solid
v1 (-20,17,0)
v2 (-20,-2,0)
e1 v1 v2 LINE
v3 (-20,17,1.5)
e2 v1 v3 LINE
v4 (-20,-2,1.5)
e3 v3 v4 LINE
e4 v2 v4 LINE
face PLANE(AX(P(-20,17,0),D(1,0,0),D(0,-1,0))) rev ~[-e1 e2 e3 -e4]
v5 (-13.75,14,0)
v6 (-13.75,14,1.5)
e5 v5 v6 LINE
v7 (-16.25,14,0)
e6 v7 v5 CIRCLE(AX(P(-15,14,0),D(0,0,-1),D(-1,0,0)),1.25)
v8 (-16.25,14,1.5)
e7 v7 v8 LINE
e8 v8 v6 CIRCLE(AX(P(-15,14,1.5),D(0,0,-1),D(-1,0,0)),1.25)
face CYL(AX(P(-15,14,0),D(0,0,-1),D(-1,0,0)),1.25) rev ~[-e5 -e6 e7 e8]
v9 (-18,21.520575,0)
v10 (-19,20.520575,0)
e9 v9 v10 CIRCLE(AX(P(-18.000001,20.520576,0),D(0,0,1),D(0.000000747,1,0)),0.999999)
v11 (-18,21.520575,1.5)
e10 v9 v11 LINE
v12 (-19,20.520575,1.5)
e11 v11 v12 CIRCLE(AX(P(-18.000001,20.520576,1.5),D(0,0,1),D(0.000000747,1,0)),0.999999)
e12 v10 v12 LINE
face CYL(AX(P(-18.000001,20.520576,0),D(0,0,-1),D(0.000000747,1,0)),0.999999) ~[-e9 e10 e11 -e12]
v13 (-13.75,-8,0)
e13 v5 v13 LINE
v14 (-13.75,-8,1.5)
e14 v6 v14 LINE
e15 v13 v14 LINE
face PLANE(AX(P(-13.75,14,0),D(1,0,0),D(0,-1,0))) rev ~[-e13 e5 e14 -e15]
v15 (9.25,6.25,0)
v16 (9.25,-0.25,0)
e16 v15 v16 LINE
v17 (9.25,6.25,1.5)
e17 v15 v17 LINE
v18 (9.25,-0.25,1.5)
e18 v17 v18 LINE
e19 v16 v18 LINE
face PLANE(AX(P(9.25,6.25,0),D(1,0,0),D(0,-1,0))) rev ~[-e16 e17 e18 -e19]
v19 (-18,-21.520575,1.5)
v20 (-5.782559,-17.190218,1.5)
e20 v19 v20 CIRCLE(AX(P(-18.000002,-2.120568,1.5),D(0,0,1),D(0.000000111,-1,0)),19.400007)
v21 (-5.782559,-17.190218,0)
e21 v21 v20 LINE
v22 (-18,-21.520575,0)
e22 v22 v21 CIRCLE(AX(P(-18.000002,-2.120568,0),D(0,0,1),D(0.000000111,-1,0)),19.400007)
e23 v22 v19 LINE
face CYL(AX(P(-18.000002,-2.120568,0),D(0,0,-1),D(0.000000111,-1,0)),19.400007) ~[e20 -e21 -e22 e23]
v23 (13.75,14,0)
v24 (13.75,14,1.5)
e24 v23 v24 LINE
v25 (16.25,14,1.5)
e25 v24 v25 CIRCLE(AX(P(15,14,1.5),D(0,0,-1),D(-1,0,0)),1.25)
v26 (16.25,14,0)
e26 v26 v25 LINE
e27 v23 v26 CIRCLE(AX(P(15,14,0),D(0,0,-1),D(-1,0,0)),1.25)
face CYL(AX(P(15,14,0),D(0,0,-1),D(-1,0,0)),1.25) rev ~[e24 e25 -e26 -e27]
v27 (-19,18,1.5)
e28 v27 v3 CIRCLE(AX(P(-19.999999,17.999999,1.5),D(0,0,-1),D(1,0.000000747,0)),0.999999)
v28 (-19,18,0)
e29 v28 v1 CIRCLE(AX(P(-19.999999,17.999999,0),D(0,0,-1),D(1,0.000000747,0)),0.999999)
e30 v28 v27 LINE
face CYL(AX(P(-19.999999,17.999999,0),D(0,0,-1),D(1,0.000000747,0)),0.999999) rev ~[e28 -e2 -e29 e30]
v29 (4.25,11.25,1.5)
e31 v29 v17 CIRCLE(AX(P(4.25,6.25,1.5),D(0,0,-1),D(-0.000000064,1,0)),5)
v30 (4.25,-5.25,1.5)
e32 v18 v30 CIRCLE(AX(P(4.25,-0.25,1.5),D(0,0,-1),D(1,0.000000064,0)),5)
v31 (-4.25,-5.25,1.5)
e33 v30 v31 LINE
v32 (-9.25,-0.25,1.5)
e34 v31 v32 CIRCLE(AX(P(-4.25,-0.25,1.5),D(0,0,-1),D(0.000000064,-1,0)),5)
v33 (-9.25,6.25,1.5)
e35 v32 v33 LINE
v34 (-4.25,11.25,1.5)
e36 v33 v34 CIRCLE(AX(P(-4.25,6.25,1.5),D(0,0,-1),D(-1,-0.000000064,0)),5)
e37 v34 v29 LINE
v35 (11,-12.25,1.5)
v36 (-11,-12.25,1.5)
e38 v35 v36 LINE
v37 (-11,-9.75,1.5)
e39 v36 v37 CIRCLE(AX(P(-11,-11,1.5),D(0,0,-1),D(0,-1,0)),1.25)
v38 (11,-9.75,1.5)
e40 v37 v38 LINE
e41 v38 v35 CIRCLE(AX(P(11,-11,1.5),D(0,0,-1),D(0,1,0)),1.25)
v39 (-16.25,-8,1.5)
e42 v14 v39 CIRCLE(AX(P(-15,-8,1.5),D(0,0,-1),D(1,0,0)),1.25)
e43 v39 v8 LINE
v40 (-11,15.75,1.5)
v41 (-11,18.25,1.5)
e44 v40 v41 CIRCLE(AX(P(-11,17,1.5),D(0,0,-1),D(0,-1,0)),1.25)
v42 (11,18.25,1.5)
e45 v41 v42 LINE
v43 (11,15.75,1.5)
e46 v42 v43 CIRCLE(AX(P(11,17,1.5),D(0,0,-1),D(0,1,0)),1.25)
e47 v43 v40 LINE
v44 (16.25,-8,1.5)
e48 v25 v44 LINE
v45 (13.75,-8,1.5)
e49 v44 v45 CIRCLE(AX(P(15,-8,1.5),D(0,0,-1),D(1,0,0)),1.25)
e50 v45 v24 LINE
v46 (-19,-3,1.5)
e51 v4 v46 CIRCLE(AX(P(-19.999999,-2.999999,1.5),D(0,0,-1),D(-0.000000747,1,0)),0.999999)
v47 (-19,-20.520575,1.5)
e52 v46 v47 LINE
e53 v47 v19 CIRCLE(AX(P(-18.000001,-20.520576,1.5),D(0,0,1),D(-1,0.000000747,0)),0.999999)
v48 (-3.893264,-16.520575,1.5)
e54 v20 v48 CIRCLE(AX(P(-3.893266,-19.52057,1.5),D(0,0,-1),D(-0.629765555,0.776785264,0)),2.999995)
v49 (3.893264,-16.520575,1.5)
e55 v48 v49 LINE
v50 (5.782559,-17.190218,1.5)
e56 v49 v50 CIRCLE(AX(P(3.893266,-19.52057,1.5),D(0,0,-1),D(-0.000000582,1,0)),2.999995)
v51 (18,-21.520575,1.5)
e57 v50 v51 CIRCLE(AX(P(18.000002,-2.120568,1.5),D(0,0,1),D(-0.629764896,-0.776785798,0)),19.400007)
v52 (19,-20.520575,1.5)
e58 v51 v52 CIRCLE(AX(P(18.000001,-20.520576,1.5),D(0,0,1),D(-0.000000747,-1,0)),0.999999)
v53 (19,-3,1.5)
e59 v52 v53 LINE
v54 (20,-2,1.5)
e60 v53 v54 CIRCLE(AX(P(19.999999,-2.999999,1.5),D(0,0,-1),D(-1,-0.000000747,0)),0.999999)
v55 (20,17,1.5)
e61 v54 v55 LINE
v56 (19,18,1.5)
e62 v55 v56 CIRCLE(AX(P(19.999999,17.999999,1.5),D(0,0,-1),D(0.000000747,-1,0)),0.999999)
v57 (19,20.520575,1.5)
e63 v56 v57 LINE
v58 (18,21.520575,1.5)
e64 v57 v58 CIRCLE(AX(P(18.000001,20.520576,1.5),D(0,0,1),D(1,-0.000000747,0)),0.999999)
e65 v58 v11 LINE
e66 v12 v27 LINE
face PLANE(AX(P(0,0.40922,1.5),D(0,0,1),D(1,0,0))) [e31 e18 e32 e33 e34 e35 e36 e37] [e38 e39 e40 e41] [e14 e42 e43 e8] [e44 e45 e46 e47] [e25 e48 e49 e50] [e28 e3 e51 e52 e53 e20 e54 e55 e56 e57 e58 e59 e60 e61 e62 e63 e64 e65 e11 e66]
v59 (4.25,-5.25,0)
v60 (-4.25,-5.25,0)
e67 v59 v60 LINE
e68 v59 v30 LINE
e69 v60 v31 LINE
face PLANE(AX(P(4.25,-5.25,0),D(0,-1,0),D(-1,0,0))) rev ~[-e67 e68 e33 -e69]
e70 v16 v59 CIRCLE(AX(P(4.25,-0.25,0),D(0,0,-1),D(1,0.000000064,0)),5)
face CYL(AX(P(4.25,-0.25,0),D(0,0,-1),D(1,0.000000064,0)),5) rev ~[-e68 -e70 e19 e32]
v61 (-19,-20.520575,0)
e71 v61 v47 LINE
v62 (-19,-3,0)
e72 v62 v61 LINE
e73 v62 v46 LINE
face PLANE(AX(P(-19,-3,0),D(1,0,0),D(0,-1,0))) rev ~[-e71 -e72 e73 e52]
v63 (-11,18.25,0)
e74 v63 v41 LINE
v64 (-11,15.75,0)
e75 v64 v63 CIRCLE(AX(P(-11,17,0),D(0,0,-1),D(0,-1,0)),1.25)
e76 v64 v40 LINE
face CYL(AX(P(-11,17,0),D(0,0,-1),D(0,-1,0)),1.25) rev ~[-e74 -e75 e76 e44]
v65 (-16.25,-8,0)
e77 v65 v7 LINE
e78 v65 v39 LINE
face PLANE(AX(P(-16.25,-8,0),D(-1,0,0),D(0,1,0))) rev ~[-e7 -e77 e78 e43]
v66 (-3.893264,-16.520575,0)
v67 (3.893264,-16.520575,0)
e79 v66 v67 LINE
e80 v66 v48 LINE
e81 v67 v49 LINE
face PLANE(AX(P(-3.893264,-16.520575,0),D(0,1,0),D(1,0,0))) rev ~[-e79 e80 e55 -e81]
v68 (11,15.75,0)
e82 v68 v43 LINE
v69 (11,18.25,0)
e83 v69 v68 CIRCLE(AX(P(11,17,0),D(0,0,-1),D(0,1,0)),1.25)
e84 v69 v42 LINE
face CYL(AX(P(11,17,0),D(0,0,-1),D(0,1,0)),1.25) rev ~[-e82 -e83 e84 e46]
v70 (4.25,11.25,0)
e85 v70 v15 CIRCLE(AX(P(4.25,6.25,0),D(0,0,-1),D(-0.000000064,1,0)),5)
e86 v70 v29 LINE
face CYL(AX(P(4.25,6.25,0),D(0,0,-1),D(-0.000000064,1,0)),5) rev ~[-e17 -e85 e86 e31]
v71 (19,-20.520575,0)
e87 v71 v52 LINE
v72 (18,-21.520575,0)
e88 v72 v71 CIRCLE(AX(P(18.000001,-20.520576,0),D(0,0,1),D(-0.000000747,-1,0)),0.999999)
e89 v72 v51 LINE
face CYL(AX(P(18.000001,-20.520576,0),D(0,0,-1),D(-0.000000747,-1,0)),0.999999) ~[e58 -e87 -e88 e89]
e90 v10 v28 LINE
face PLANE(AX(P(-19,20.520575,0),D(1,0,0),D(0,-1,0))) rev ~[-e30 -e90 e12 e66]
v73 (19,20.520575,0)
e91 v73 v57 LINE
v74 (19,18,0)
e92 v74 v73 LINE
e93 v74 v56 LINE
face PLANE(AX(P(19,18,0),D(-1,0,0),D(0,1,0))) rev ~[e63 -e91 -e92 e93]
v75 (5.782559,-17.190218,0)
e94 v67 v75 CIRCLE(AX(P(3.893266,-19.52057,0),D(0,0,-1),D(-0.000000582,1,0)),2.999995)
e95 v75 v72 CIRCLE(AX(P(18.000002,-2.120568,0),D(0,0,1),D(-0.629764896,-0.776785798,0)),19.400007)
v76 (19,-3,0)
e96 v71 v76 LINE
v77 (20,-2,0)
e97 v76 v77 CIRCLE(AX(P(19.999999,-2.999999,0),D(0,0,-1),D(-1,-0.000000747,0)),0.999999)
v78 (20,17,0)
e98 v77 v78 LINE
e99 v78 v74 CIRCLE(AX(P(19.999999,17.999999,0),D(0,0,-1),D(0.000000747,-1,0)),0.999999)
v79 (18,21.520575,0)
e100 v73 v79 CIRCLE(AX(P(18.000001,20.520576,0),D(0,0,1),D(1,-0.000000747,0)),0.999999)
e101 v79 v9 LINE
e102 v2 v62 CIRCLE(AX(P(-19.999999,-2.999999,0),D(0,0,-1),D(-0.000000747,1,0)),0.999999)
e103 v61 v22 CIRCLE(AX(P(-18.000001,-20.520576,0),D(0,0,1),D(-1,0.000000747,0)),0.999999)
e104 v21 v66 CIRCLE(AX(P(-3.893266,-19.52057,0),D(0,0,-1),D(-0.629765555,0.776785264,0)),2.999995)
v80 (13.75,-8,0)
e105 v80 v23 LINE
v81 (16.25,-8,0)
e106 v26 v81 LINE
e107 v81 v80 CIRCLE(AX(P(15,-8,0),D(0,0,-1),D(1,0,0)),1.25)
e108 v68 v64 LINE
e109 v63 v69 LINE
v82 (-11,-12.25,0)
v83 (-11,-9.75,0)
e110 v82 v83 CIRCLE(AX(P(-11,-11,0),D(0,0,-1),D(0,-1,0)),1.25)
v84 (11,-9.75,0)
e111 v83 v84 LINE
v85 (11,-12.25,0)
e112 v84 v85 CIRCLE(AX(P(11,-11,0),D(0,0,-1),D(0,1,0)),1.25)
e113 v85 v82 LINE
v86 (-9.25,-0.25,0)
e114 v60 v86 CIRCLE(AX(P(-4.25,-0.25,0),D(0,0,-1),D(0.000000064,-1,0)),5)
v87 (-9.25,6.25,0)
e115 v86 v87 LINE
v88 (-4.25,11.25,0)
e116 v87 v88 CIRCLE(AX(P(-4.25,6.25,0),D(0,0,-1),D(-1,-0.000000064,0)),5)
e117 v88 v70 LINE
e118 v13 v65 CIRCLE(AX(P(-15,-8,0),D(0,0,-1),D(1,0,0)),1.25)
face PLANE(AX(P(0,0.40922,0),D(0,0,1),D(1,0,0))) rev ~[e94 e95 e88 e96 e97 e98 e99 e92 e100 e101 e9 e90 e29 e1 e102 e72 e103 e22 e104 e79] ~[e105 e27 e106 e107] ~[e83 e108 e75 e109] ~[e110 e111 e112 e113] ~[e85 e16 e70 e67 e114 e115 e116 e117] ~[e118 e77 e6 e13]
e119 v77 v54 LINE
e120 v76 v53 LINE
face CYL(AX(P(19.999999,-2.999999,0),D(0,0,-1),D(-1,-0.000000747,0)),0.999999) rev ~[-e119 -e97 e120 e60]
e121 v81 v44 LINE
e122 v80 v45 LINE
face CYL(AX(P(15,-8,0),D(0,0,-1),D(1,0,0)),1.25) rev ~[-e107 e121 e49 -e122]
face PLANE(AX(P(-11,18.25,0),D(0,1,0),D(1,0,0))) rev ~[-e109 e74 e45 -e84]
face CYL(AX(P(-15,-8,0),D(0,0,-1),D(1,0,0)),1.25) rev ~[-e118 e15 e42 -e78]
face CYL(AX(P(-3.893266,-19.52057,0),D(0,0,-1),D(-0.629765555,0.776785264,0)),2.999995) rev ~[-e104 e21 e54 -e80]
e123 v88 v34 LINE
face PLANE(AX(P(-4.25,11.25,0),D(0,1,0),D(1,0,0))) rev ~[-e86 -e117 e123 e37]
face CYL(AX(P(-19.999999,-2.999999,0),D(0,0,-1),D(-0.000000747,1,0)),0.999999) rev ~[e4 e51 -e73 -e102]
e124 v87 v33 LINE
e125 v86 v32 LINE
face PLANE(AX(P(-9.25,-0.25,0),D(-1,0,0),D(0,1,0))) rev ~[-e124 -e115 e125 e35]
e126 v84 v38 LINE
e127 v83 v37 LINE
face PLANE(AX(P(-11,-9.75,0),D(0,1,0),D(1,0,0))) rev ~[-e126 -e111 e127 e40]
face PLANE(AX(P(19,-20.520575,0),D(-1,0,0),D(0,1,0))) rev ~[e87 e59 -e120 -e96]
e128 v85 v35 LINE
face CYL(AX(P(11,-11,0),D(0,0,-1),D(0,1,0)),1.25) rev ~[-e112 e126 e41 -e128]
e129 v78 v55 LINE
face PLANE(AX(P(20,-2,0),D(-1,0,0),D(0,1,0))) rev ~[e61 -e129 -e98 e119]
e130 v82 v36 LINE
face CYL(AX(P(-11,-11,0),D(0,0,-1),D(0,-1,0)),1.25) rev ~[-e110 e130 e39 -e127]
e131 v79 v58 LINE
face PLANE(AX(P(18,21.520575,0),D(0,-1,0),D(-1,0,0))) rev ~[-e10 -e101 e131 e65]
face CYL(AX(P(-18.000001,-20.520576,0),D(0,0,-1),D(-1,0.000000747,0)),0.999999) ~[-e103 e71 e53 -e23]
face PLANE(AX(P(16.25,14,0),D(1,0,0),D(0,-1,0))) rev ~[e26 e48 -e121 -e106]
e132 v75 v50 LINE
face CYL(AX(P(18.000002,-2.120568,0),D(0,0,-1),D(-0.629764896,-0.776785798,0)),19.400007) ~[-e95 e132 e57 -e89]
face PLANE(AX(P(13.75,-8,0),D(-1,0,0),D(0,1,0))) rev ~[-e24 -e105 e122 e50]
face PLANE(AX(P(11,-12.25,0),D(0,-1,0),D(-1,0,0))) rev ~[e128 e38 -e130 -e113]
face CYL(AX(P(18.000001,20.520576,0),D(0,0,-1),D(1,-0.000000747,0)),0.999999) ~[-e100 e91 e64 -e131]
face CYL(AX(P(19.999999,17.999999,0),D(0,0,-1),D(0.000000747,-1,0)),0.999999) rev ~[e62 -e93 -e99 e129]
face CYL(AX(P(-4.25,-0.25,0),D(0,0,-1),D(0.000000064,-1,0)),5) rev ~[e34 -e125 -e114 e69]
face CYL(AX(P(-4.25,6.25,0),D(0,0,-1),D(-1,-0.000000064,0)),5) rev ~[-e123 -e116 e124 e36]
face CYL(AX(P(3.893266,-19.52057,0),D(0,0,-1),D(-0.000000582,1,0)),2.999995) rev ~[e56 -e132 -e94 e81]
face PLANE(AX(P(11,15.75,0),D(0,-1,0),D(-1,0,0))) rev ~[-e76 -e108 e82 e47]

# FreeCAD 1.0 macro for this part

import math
import FreeCAD as App
import Part
import Sketcher

doc = App.newDocument("Part")
body = doc.addObject("PartDesign::Body", "Body")

sketch1 = body.newObject("Sketcher::SketchObject", "Sketch")
sketch1.AttachmentSupport = (doc.getObject("XY_Plane"), [""])
sketch1.MapMode = "FlatFace"
sketch1.addGeometry([
    Part.ArcOfCircle(Part.Circle(App.Vector(-19.999999, 17.999999, 0), App.Vector(0, 0, 1), 0.999999), math.radians(-90.000043), math.radians(0.000043)),
    Part.LineSegment(App.Vector(-20, 17, 0), App.Vector(-20, -2, 0)),
    Part.ArcOfCircle(Part.Circle(App.Vector(-19.999999, -2.999999, 0), App.Vector(0, 0, 1), 0.999999), math.radians(-0.000043), math.radians(90.000043)),
    Part.LineSegment(App.Vector(-19, -3, 0), App.Vector(-19, -20.520575, 0)),
    Part.ArcOfCircle(Part.Circle(App.Vector(-18.000001, -20.520576, 0), App.Vector(0, 0, 1), 0.999999), math.radians(179.999957), math.radians(270.000043)),
    Part.ArcOfCircle(Part.Circle(App.Vector(-18.000002, -2.120568, 0), App.Vector(0, 0, 1), 19.400007), math.radians(-89.999994), math.radians(-50.967221)),
    Part.ArcOfCircle(Part.Circle(App.Vector(-3.893266, -19.52057, 0), App.Vector(0, 0, 1), 2.999995), math.radians(89.999967), math.radians(129.032828)),
    Part.LineSegment(App.Vector(-3.893264, -16.520575, 0), App.Vector(3.893264, -16.520575, 0)),
    Part.ArcOfCircle(Part.Circle(App.Vector(3.893266, -19.52057, 0), App.Vector(0, 0, 1), 2.999995), math.radians(50.967172), math.radians(90.000033)),
    Part.ArcOfCircle(Part.Circle(App.Vector(18.000002, -2.120568, 0), App.Vector(0, 0, 1), 19.400007), math.radians(-129.032779), math.radians(-90.000006)),
    Part.ArcOfCircle(Part.Circle(App.Vector(18.000001, -20.520576, 0), App.Vector(0, 0, 1), 0.999999), math.radians(-90.000043), math.radians(0.000043)),
    Part.LineSegment(App.Vector(19, -20.520575, 0), App.Vector(19, -3, 0)),
    Part.ArcOfCircle(Part.Circle(App.Vector(19.999999, -2.999999, 0), App.Vector(0, 0, 1), 0.999999), math.radians(89.999957), math.radians(180.000043)),
    Part.LineSegment(App.Vector(20, -2, 0), App.Vector(20, 17, 0)),
    Part.ArcOfCircle(Part.Circle(App.Vector(19.999999, 17.999999, 0), App.Vector(0, 0, 1), 0.999999), math.radians(179.999957), math.radians(270.000043)),
    Part.LineSegment(App.Vector(19, 18, 0), App.Vector(19, 20.520575, 0)),
    Part.ArcOfCircle(Part.Circle(App.Vector(18.000001, 20.520576, 0), App.Vector(0, 0, 1), 0.999999), math.radians(-0.000043), math.radians(90.000043)),
    Part.LineSegment(App.Vector(18, 21.520575, 0), App.Vector(-18, 21.520575, 0)),
    Part.ArcOfCircle(Part.Circle(App.Vector(-18.000001, 20.520576, 0), App.Vector(0, 0, 1), 0.999999), math.radians(89.999957), math.radians(180.000043)),
    Part.LineSegment(App.Vector(-19, 20.520575, 0), App.Vector(-19, 18, 0)),
    Part.ArcOfCircle(Part.Circle(App.Vector(-11, -11, 0), App.Vector(0, 0, 1), 1.25), math.radians(90), math.radians(270)),
    Part.LineSegment(App.Vector(-11, -9.75, 0), App.Vector(11, -9.75, 0)),
    Part.ArcOfCircle(Part.Circle(App.Vector(11, -11, 0), App.Vector(0, 0, 1), 1.25), math.radians(-90), math.radians(90)),
    Part.LineSegment(App.Vector(11, -12.25, 0), App.Vector(-11, -12.25, 0)),
    Part.ArcOfCircle(Part.Circle(App.Vector(-15, -8, 0), App.Vector(0, 0, 1), 1.25), math.radians(180), math.radians(360)),
    Part.LineSegment(App.Vector(-16.25, -8, 0), App.Vector(-16.25, 14, 0)),
    Part.ArcOfCircle(Part.Circle(App.Vector(-15, 14, 0), App.Vector(0, 0, 1), 1.25), math.radians(0), math.radians(180)),
    Part.LineSegment(App.Vector(-13.75, 14, 0), App.Vector(-13.75, -8, 0)),
    Part.ArcOfCircle(Part.Circle(App.Vector(4.25, -0.25, 0), App.Vector(0, 0, 1), 5), math.radians(-90.000004), math.radians(0.000004)),
    Part.LineSegment(App.Vector(4.25, -5.25, 0), App.Vector(-4.25, -5.25, 0)),
    Part.ArcOfCircle(Part.Circle(App.Vector(-4.25, -0.25, 0), App.Vector(0, 0, 1), 5), math.radians(179.999996), math.radians(270.000004)),
    Part.LineSegment(App.Vector(-9.25, -0.25, 0), App.Vector(-9.25, 6.25, 0)),
    Part.ArcOfCircle(Part.Circle(App.Vector(-4.25, 6.25, 0), App.Vector(0, 0, 1), 5), math.radians(89.999996), math.radians(180.000004)),
    Part.LineSegment(App.Vector(-4.25, 11.25, 0), App.Vector(4.25, 11.25, 0)),
    Part.ArcOfCircle(Part.Circle(App.Vector(4.25, 6.25, 0), App.Vector(0, 0, 1), 5), math.radians(-0.000004), math.radians(90.000004)),
    Part.LineSegment(App.Vector(9.25, 6.25, 0), App.Vector(9.25, -0.25, 0)),
    Part.LineSegment(App.Vector(13.75, -8, 0), App.Vector(13.75, 14, 0)),
    Part.ArcOfCircle(Part.Circle(App.Vector(15, 14, 0), App.Vector(0, 0, 1), 1.25), math.radians(0), math.radians(180)),
    Part.LineSegment(App.Vector(16.25, 14, 0), App.Vector(16.25, -8, 0)),
    Part.ArcOfCircle(Part.Circle(App.Vector(15, -8, 0), App.Vector(0, 0, 1), 1.25), math.radians(180), math.radians(360)),
    Part.ArcOfCircle(Part.Circle(App.Vector(-11, 17, 0), App.Vector(0, 0, 1), 1.25), math.radians(90), math.radians(270)),
    Part.LineSegment(App.Vector(-11, 18.25, 0), App.Vector(11, 18.25, 0)),
    Part.ArcOfCircle(Part.Circle(App.Vector(11, 17, 0), App.Vector(0, 0, 1), 1.25), math.radians(-90), math.radians(90)),
    Part.LineSegment(App.Vector(11, 15.75, 0), App.Vector(-11, 15.75, 0)),
], False)
sketch1.addConstraint([
    Sketcher.Constraint("Coincident", 0, 1, 1, 1),
    Sketcher.Constraint("Coincident", 1, 2, 2, 2),
    Sketcher.Constraint("Tangent", 2, 1, 3, 1),
    Sketcher.Constraint("Tangent", 3, 2, 4, 1),
    Sketcher.Constraint("Tangent", 4, 2, 5, 1),
    Sketcher.Constraint("Tangent", 5, 2, 6, 2),
    Sketcher.Constraint("Tangent", 6, 1, 7, 1),
    Sketcher.Constraint("Tangent", 7, 2, 8, 2),
    Sketcher.Constraint("Tangent", 8, 1, 9, 1),
    Sketcher.Constraint("Tangent", 9, 2, 10, 1),
    Sketcher.Constraint("Tangent", 10, 2, 11, 1),
    Sketcher.Constraint("Tangent", 11, 2, 12, 2),
    Sketcher.Constraint("Coincident", 12, 1, 13, 1),
    Sketcher.Constraint("Coincident", 13, 2, 14, 2),
    Sketcher.Constraint("Tangent", 14, 1, 15, 1),
    Sketcher.Constraint("Tangent", 15, 2, 16, 1),
    Sketcher.Constraint("Tangent", 16, 2, 17, 1),
    Sketcher.Constraint("Tangent", 17, 2, 18, 1),
    Sketcher.Constraint("Tangent", 18, 2, 19, 1),
    Sketcher.Constraint("Tangent", 19, 2, 0, 2),
    Sketcher.Constraint("Tangent", 20, 1, 21, 1),
    Sketcher.Constraint("Tangent", 21, 2, 22, 2),
    Sketcher.Constraint("Tangent", 22, 1, 23, 1),
    Sketcher.Constraint("Tangent", 23, 2, 20, 2),
    Sketcher.Constraint("Tangent", 24, 1, 25, 1),
    Sketcher.Constraint("Tangent", 25, 2, 26, 2),
    Sketcher.Constraint("Tangent", 26, 1, 27, 1),
    Sketcher.Constraint("Tangent", 27, 2, 24, 2),
    Sketcher.Constraint("Tangent", 28, 1, 29, 1),
    Sketcher.Constraint("Tangent", 29, 2, 30, 2),
    Sketcher.Constraint("Tangent", 30, 1, 31, 1),
    Sketcher.Constraint("Tangent", 31, 2, 32, 2),
    Sketcher.Constraint("Tangent", 32, 1, 33, 1),
    Sketcher.Constraint("Tangent", 33, 2, 34, 2),
    Sketcher.Constraint("Tangent", 34, 1, 35, 1),
    Sketcher.Constraint("Tangent", 35, 2, 28, 2),
    Sketcher.Constraint("Tangent", 36, 2, 37, 2),
    Sketcher.Constraint("Tangent", 37, 1, 38, 1),
    Sketcher.Constraint("Tangent", 38, 2, 39, 2),
    Sketcher.Constraint("Tangent", 39, 1, 36, 1),
    Sketcher.Constraint("Tangent", 40, 1, 41, 1),
    Sketcher.Constraint("Tangent", 41, 2, 42, 2),
    Sketcher.Constraint("Tangent", 42, 1, 43, 1),
    Sketcher.Constraint("Tangent", 43, 2, 40, 2),
    Sketcher.Constraint("Vertical", 1),
    Sketcher.Constraint("Vertical", 3),
    Sketcher.Constraint("Horizontal", 7),
    Sketcher.Constraint("Vertical", 11),
    Sketcher.Constraint("Vertical", 13),
    Sketcher.Constraint("Vertical", 15),
    Sketcher.Constraint("Horizontal", 17),
    Sketcher.Constraint("Vertical", 19),
    Sketcher.Constraint("Horizontal", 21),
    Sketcher.Constraint("Horizontal", 23),
    Sketcher.Constraint("Vertical", 25),
    Sketcher.Constraint("Vertical", 27),
    Sketcher.Constraint("Horizontal", 29),
    Sketcher.Constraint("Vertical", 31),
    Sketcher.Constraint("Horizontal", 33),
    Sketcher.Constraint("Vertical", 35),
    Sketcher.Constraint("Vertical", 36),
    Sketcher.Constraint("Vertical", 38),
    Sketcher.Constraint("Horizontal", 41),
    Sketcher.Constraint("Horizontal", 43),
    Sketcher.Constraint("Equal", 0, 2),
    Sketcher.Constraint("Equal", 2, 4),
    Sketcher.Constraint("Equal", 6, 8),
    Sketcher.Constraint("Equal", 5, 9),
    Sketcher.Constraint("Equal", 4, 10),
    Sketcher.Constraint("Equal", 10, 12),
    Sketcher.Constraint("Equal", 12, 14),
    Sketcher.Constraint("Equal", 14, 16),
    Sketcher.Constraint("Equal", 16, 18),
    Sketcher.Constraint("Equal", 22, 24),
    Sketcher.Constraint("Equal", 28, 30),
    Sketcher.Constraint("Equal", 30, 32),
    Sketcher.Constraint("Equal", 32, 34),
    Sketcher.Constraint("Equal", 26, 37),
    Sketcher.Constraint("Equal", 39, 40),
    Sketcher.Constraint("Symmetric", 4, 3, 16, 3, -1, 1),
    Sketcher.Constraint("Symmetric", 10, 3, 18, 3, -1, 1),
    Sketcher.Constraint("Symmetric", 2, 3, 12, 3, -2),
    Sketcher.Constraint("Symmetric", 26, 3, 37, 3, -2),
    Sketcher.Constraint("Symmetric", 0, 1, 13, 2, -2),
    Sketcher.Constraint("Horizontal", 24, 3, 39, 3),
    Sketcher.Constraint("Horizontal", 42, 3, 0, 1),
    Sketcher.Constraint("Vertical", 4, 3, 5, 3),
    Sketcher.Constraint("Vertical", 9, 3, 10, 3),
    Sketcher.Constraint("Vertical", 20, 3, 40, 3),
    Sketcher.Constraint("Vertical", 22, 3, 42, 3),
    Sketcher.Constraint("Vertical", 2, 3, 0, 1),
    Sketcher.Constraint("Equal", 43, 25),
    Sketcher.Constraint("Radius", 0, 0.999999),
    Sketcher.Constraint("Radius", 28, 5.0),
    Sketcher.Constraint("DistanceX", 17, 2, 17, 1, 36.0),
    Sketcher.Constraint("DistanceX", 21, 1, 21, 2, 22.0),
    Sketcher.Constraint("DistanceY", 1, 2, 1, 1, 19.0),
    Sketcher.Constraint("Radius", 20, 1.25),
    Sketcher.Constraint("DistanceX", 29, 2, 29, 1, 8.5),
    Sketcher.Constraint("DistanceY", 31, 1, 31, 2, 6.5),
    Sketcher.Constraint("DistanceY", -1, 1, 0, 3, 17.999999),
    Sketcher.Constraint("DistanceX", 20, 3, -1, 1, 11.0),
    Sketcher.Constraint("DistanceY", 20, 3, -1, 1, 11.0),
    Sketcher.Constraint("DistanceX", 24, 3, -1, 1, 15.0),
    Sketcher.Constraint("DistanceY", 24, 3, -1, 1, 8.0),
    Sketcher.Constraint("DistanceX", -1, 1, 28, 3, 4.25),
    Sketcher.Constraint("DistanceY", 28, 3, -1, 1, 0.25),
    Sketcher.Constraint("Radius", 5, 19.400007),
    Sketcher.Constraint("Radius", 6, 2.999995),
    Sketcher.Constraint("DistanceX", 7, 1, 7, 2, 7.786528),
    Sketcher.Constraint("DistanceY", 3, 2, 3, 1, 17.520575),
])
pad1 = body.newObject("PartDesign::Pad", "Pad")
pad1.Profile = sketch1
pad1.Length = 1.5

doc.recompute()
